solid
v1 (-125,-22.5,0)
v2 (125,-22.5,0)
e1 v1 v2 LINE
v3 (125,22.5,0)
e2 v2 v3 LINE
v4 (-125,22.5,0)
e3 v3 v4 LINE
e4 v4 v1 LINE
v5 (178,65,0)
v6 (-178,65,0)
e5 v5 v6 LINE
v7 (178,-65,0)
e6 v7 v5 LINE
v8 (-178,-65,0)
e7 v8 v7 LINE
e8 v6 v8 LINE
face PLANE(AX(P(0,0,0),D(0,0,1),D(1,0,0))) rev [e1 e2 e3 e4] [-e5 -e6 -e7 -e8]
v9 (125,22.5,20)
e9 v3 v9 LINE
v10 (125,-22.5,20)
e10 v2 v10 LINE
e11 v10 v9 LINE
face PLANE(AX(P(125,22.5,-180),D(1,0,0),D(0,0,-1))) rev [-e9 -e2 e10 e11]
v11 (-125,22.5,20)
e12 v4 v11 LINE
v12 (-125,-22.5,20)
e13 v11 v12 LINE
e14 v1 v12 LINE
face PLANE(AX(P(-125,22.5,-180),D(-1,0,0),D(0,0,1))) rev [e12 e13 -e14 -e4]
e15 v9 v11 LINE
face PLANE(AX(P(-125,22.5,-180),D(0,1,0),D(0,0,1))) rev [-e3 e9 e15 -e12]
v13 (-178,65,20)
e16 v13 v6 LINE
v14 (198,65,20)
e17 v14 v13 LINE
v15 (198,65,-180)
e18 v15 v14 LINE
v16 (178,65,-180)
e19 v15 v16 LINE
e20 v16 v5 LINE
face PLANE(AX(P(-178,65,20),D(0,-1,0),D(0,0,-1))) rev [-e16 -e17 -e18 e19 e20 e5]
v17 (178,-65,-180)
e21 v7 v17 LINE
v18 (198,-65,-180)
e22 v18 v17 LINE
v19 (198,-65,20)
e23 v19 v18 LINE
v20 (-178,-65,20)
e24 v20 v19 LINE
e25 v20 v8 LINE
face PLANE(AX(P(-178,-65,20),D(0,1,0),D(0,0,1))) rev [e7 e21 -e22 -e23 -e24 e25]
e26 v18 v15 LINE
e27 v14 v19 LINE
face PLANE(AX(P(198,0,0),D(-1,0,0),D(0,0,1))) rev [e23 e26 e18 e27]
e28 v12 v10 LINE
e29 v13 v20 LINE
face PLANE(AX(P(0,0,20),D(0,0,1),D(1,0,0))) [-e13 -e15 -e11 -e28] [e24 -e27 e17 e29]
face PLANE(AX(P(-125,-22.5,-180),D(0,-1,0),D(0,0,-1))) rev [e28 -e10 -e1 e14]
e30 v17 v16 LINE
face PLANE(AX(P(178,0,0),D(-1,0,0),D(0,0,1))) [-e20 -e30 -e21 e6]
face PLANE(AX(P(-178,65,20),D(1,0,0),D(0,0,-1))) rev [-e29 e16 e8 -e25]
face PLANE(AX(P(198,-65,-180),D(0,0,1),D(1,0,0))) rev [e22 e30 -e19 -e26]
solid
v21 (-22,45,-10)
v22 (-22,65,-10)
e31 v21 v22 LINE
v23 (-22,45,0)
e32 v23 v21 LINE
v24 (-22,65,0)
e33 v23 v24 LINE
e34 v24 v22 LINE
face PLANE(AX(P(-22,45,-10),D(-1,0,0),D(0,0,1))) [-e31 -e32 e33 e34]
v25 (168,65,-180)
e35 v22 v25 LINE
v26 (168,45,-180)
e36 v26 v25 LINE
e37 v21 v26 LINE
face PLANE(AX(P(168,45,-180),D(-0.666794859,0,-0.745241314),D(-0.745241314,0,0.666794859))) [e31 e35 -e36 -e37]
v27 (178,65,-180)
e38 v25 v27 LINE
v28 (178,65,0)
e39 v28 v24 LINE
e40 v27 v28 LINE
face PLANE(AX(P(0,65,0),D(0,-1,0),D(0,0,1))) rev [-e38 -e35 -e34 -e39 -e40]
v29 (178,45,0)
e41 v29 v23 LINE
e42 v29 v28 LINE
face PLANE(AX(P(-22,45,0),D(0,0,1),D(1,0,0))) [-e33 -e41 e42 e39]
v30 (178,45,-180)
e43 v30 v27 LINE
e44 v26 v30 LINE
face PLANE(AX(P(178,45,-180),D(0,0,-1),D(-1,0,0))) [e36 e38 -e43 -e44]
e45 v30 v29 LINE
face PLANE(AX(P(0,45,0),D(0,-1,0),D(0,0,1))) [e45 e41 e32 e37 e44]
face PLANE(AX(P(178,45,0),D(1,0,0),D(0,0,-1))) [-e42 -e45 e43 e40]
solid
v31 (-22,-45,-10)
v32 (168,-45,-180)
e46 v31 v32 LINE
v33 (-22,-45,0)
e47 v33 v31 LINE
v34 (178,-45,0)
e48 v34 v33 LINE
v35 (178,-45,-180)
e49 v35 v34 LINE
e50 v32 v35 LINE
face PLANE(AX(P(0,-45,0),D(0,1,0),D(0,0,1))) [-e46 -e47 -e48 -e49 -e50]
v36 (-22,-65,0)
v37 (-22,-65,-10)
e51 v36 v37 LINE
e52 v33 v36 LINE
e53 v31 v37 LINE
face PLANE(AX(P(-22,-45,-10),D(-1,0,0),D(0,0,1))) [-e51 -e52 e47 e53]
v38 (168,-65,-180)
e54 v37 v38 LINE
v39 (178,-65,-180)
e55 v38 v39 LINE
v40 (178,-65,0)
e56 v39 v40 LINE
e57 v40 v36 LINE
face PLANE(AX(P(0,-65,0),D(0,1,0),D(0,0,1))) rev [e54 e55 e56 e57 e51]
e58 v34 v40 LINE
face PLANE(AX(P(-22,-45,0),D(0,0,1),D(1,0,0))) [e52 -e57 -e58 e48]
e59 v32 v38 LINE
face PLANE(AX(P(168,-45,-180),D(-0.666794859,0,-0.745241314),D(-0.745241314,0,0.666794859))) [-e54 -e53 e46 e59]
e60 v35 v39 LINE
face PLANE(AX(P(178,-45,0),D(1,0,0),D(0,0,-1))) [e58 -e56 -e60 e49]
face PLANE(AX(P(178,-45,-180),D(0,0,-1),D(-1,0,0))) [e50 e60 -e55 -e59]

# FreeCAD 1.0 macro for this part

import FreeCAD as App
import Part
import Sketcher

V = App.Vector
Q = App.Units.Quantity

doc = App.newDocument("Part")
body = doc.addObject("PartDesign::Body", "Body")

# Sketch on XY plane
sketch1 = body.newObject("Sketcher::SketchObject", "Sketch")
sketch1.AttachmentSupport = (doc.getObject("XY_Plane"), [""])
sketch1.MapMode = "FlatFace"
sketch1.addGeometry(Part.LineSegment(V(-178, 65, 0), V(-178, -65, 0)), False)
sketch1.addGeometry(Part.LineSegment(V(-178, -65, 0), V(178, -65, 0)), False)
sketch1.addGeometry(Part.LineSegment(V(178, -65, 0), V(178, 65, 0)), False)
sketch1.addGeometry(Part.LineSegment(V(178, 65, 0), V(-178, 65, 0)), False)
sketch1.addConstraint(Sketcher.Constraint("Coincident", 0, 2, 1, 1))
sketch1.addConstraint(Sketcher.Constraint("Coincident", 1, 2, 2, 1))
sketch1.addConstraint(Sketcher.Constraint("Coincident", 2, 2, 3, 1))
sketch1.addConstraint(Sketcher.Constraint("Coincident", 3, 2, 0, 1))
sketch1.addConstraint(Sketcher.Constraint("Vertical", 0))
sketch1.addConstraint(Sketcher.Constraint("Horizontal", 1))
sketch1.addConstraint(Sketcher.Constraint("Vertical", 2))
sketch1.addConstraint(Sketcher.Constraint("Horizontal", 3))
sketch1.addConstraint(Sketcher.Constraint("Symmetric", 0, 2, 2, 2, -1, 1))
sketch1.addConstraint(Sketcher.Constraint("DistanceX", 1, 1, 1, 2, Q("356 mm")))
sketch1.addConstraint(Sketcher.Constraint("DistanceY", 0, 2, 0, 1, Q("130 mm")))
pad1 = body.newObject("PartDesign::Pad", "Pad")
pad1.Profile = sketch1
pad1.Length = 20

# Sketch on YZ plane
sketch2 = body.newObject("Sketcher::SketchObject", "Sketch001")
sketch2.AttachmentSupport = (doc.getObject("YZ_Plane"), [""])
sketch2.MapMode = "FlatFace"
sketch2.AttachmentOffset = App.Placement(V(0, 0, 178), App.Rotation())
sketch2.addGeometry(Part.LineSegment(V(65, 20, 0), V(-65, 20, 0)), False)
sketch2.addGeometry(Part.LineSegment(V(-65, 20, 0), V(-65, -180, 0)), False)
sketch2.addGeometry(Part.LineSegment(V(-65, -180, 0), V(65, -180, 0)), False)
sketch2.addGeometry(Part.LineSegment(V(65, -180, 0), V(65, 20, 0)), False)
sketch2.addConstraint(Sketcher.Constraint("Coincident", 0, 2, 1, 1))
sketch2.addConstraint(Sketcher.Constraint("Coincident", 1, 2, 2, 1))
sketch2.addConstraint(Sketcher.Constraint("Coincident", 2, 2, 3, 1))
sketch2.addConstraint(Sketcher.Constraint("Coincident", 3, 2, 0, 1))
sketch2.addConstraint(Sketcher.Constraint("Horizontal", 0))
sketch2.addConstraint(Sketcher.Constraint("Vertical", 1))
sketch2.addConstraint(Sketcher.Constraint("Horizontal", 2))
sketch2.addConstraint(Sketcher.Constraint("Vertical", 3))
sketch2.addConstraint(Sketcher.Constraint("DistanceX", 0, 2, 0, 1, Q("130 mm")))
sketch2.addConstraint(Sketcher.Constraint("DistanceY", 1, 2, 1, 1, Q("200 mm")))
sketch2.addConstraint(Sketcher.Constraint("DistanceX", 0, 2, -1, 1, Q("65 mm")))
sketch2.addConstraint(Sketcher.Constraint("DistanceY", -1, 1, 0, 2, Q("20 mm")))
pad2 = body.newObject("PartDesign::Pad", "Pad001")
pad2.Profile = sketch2
pad2.Length = 20

# Sketch on XY plane
sketch3 = body.newObject("Sketcher::SketchObject", "Sketch002")
sketch3.AttachmentSupport = (doc.getObject("XY_Plane"), [""])
sketch3.MapMode = "FlatFace"
sketch3.AttachmentOffset = App.Placement(V(0, 0, 20), App.Rotation())
sketch3.addGeometry(Part.LineSegment(V(-125, 22, 0), V(-125, -22, 0)), False)
sketch3.addGeometry(Part.LineSegment(V(-125, -22, 0), V(125, -22, 0)), False)
sketch3.addGeometry(Part.LineSegment(V(125, -22, 0), V(125, 22, 0)), False)
sketch3.addGeometry(Part.LineSegment(V(125, 22, 0), V(-125, 22, 0)), False)
sketch3.addConstraint(Sketcher.Constraint("Coincident", 0, 2, 1, 1))
sketch3.addConstraint(Sketcher.Constraint("Coincident", 1, 2, 2, 1))
sketch3.addConstraint(Sketcher.Constraint("Coincident", 2, 2, 3, 1))
sketch3.addConstraint(Sketcher.Constraint("Coincident", 3, 2, 0, 1))
sketch3.addConstraint(Sketcher.Constraint("Vertical", 0))
sketch3.addConstraint(Sketcher.Constraint("Horizontal", 1))
sketch3.addConstraint(Sketcher.Constraint("Vertical", 2))
sketch3.addConstraint(Sketcher.Constraint("Horizontal", 3))
sketch3.addConstraint(Sketcher.Constraint("Symmetric", 0, 2, 2, 2, -1, 1))
sketch3.addConstraint(Sketcher.Constraint("DistanceX", 1, 1, 1, 2, Q("250 mm")))
sketch3.addConstraint(Sketcher.Constraint("DistanceY", 0, 2, 0, 1, Q("45 mm")))
pocket1 = body.newObject("PartDesign::Pocket", "Pocket")
pocket1.Profile = sketch3
pocket1.Type = "ThroughAll"
body2 = doc.addObject("PartDesign::Body", "Body001")

# Sketch on XZ plane
sketch4 = body2.newObject("Sketcher::SketchObject", "Sketch003")
sketch4.AttachmentSupport = (doc.getObject("XZ_Plane001"), [""])
sketch4.MapMode = "FlatFace"
sketch4.AttachmentOffset = App.Placement(V(0, 0, 65), App.Rotation())
sketch4.addGeometry(Part.LineSegment(V(168, -180, 0), V(178, -180, 0)), False)
sketch4.addGeometry(Part.LineSegment(V(178, -180, 0), V(178, 0, 0)), False)
sketch4.addGeometry(Part.LineSegment(V(178, 0, 0), V(-22, 0, 0)), False)
sketch4.addGeometry(Part.LineSegment(V(-22, 0, 0), V(-22, -10, 0)), False)
sketch4.addGeometry(Part.LineSegment(V(-22, -10, 0), V(168, -180, 0)), False)
sketch4.addConstraint(Sketcher.Constraint("Coincident", 0, 2, 1, 1))
sketch4.addConstraint(Sketcher.Constraint("Coincident", 1, 2, 2, 1))
sketch4.addConstraint(Sketcher.Constraint("Coincident", 2, 2, 3, 1))
sketch4.addConstraint(Sketcher.Constraint("Coincident", 3, 2, 4, 1))
sketch4.addConstraint(Sketcher.Constraint("Coincident", 4, 2, 0, 1))
sketch4.addConstraint(Sketcher.Constraint("Horizontal", 0))
sketch4.addConstraint(Sketcher.Constraint("Vertical", 1))
sketch4.addConstraint(Sketcher.Constraint("Horizontal", 2))
sketch4.addConstraint(Sketcher.Constraint("Vertical", 3))
sketch4.addConstraint(Sketcher.Constraint("PointOnObject", 1, 2, -1))
sketch4.addConstraint(Sketcher.Constraint("Equal", 0, 3))
sketch4.addConstraint(Sketcher.Constraint("DistanceX", 0, 1, 0, 2, Q("10 mm")))
sketch4.addConstraint(Sketcher.Constraint("DistanceX", 2, 2, 2, 1, Q("200 mm")))
sketch4.addConstraint(Sketcher.Constraint("DistanceY", 1, 1, 1, 2, Q("180 mm")))
sketch4.addConstraint(Sketcher.Constraint("DistanceX", -1, 1, 0, 2, Q("178 mm")))
pad3 = body2.newObject("PartDesign::Pad", "Pad002")
pad3.Profile = sketch4
pad3.Length = 20
pad3.Reversed = True
body3 = doc.addObject("PartDesign::Body", "Body002")
doc.recompute()

mirroring = doc.addObject("Part::Mirroring", "Mirroring")
mirroring.Source = body2
mirroring.Base = V(0, 0, 0)
mirroring.Normal = V(0, 1, 0)
body3.BaseFeature = mirroring
doc.recompute()
mirroring.Visibility = False

doc.recompute()
